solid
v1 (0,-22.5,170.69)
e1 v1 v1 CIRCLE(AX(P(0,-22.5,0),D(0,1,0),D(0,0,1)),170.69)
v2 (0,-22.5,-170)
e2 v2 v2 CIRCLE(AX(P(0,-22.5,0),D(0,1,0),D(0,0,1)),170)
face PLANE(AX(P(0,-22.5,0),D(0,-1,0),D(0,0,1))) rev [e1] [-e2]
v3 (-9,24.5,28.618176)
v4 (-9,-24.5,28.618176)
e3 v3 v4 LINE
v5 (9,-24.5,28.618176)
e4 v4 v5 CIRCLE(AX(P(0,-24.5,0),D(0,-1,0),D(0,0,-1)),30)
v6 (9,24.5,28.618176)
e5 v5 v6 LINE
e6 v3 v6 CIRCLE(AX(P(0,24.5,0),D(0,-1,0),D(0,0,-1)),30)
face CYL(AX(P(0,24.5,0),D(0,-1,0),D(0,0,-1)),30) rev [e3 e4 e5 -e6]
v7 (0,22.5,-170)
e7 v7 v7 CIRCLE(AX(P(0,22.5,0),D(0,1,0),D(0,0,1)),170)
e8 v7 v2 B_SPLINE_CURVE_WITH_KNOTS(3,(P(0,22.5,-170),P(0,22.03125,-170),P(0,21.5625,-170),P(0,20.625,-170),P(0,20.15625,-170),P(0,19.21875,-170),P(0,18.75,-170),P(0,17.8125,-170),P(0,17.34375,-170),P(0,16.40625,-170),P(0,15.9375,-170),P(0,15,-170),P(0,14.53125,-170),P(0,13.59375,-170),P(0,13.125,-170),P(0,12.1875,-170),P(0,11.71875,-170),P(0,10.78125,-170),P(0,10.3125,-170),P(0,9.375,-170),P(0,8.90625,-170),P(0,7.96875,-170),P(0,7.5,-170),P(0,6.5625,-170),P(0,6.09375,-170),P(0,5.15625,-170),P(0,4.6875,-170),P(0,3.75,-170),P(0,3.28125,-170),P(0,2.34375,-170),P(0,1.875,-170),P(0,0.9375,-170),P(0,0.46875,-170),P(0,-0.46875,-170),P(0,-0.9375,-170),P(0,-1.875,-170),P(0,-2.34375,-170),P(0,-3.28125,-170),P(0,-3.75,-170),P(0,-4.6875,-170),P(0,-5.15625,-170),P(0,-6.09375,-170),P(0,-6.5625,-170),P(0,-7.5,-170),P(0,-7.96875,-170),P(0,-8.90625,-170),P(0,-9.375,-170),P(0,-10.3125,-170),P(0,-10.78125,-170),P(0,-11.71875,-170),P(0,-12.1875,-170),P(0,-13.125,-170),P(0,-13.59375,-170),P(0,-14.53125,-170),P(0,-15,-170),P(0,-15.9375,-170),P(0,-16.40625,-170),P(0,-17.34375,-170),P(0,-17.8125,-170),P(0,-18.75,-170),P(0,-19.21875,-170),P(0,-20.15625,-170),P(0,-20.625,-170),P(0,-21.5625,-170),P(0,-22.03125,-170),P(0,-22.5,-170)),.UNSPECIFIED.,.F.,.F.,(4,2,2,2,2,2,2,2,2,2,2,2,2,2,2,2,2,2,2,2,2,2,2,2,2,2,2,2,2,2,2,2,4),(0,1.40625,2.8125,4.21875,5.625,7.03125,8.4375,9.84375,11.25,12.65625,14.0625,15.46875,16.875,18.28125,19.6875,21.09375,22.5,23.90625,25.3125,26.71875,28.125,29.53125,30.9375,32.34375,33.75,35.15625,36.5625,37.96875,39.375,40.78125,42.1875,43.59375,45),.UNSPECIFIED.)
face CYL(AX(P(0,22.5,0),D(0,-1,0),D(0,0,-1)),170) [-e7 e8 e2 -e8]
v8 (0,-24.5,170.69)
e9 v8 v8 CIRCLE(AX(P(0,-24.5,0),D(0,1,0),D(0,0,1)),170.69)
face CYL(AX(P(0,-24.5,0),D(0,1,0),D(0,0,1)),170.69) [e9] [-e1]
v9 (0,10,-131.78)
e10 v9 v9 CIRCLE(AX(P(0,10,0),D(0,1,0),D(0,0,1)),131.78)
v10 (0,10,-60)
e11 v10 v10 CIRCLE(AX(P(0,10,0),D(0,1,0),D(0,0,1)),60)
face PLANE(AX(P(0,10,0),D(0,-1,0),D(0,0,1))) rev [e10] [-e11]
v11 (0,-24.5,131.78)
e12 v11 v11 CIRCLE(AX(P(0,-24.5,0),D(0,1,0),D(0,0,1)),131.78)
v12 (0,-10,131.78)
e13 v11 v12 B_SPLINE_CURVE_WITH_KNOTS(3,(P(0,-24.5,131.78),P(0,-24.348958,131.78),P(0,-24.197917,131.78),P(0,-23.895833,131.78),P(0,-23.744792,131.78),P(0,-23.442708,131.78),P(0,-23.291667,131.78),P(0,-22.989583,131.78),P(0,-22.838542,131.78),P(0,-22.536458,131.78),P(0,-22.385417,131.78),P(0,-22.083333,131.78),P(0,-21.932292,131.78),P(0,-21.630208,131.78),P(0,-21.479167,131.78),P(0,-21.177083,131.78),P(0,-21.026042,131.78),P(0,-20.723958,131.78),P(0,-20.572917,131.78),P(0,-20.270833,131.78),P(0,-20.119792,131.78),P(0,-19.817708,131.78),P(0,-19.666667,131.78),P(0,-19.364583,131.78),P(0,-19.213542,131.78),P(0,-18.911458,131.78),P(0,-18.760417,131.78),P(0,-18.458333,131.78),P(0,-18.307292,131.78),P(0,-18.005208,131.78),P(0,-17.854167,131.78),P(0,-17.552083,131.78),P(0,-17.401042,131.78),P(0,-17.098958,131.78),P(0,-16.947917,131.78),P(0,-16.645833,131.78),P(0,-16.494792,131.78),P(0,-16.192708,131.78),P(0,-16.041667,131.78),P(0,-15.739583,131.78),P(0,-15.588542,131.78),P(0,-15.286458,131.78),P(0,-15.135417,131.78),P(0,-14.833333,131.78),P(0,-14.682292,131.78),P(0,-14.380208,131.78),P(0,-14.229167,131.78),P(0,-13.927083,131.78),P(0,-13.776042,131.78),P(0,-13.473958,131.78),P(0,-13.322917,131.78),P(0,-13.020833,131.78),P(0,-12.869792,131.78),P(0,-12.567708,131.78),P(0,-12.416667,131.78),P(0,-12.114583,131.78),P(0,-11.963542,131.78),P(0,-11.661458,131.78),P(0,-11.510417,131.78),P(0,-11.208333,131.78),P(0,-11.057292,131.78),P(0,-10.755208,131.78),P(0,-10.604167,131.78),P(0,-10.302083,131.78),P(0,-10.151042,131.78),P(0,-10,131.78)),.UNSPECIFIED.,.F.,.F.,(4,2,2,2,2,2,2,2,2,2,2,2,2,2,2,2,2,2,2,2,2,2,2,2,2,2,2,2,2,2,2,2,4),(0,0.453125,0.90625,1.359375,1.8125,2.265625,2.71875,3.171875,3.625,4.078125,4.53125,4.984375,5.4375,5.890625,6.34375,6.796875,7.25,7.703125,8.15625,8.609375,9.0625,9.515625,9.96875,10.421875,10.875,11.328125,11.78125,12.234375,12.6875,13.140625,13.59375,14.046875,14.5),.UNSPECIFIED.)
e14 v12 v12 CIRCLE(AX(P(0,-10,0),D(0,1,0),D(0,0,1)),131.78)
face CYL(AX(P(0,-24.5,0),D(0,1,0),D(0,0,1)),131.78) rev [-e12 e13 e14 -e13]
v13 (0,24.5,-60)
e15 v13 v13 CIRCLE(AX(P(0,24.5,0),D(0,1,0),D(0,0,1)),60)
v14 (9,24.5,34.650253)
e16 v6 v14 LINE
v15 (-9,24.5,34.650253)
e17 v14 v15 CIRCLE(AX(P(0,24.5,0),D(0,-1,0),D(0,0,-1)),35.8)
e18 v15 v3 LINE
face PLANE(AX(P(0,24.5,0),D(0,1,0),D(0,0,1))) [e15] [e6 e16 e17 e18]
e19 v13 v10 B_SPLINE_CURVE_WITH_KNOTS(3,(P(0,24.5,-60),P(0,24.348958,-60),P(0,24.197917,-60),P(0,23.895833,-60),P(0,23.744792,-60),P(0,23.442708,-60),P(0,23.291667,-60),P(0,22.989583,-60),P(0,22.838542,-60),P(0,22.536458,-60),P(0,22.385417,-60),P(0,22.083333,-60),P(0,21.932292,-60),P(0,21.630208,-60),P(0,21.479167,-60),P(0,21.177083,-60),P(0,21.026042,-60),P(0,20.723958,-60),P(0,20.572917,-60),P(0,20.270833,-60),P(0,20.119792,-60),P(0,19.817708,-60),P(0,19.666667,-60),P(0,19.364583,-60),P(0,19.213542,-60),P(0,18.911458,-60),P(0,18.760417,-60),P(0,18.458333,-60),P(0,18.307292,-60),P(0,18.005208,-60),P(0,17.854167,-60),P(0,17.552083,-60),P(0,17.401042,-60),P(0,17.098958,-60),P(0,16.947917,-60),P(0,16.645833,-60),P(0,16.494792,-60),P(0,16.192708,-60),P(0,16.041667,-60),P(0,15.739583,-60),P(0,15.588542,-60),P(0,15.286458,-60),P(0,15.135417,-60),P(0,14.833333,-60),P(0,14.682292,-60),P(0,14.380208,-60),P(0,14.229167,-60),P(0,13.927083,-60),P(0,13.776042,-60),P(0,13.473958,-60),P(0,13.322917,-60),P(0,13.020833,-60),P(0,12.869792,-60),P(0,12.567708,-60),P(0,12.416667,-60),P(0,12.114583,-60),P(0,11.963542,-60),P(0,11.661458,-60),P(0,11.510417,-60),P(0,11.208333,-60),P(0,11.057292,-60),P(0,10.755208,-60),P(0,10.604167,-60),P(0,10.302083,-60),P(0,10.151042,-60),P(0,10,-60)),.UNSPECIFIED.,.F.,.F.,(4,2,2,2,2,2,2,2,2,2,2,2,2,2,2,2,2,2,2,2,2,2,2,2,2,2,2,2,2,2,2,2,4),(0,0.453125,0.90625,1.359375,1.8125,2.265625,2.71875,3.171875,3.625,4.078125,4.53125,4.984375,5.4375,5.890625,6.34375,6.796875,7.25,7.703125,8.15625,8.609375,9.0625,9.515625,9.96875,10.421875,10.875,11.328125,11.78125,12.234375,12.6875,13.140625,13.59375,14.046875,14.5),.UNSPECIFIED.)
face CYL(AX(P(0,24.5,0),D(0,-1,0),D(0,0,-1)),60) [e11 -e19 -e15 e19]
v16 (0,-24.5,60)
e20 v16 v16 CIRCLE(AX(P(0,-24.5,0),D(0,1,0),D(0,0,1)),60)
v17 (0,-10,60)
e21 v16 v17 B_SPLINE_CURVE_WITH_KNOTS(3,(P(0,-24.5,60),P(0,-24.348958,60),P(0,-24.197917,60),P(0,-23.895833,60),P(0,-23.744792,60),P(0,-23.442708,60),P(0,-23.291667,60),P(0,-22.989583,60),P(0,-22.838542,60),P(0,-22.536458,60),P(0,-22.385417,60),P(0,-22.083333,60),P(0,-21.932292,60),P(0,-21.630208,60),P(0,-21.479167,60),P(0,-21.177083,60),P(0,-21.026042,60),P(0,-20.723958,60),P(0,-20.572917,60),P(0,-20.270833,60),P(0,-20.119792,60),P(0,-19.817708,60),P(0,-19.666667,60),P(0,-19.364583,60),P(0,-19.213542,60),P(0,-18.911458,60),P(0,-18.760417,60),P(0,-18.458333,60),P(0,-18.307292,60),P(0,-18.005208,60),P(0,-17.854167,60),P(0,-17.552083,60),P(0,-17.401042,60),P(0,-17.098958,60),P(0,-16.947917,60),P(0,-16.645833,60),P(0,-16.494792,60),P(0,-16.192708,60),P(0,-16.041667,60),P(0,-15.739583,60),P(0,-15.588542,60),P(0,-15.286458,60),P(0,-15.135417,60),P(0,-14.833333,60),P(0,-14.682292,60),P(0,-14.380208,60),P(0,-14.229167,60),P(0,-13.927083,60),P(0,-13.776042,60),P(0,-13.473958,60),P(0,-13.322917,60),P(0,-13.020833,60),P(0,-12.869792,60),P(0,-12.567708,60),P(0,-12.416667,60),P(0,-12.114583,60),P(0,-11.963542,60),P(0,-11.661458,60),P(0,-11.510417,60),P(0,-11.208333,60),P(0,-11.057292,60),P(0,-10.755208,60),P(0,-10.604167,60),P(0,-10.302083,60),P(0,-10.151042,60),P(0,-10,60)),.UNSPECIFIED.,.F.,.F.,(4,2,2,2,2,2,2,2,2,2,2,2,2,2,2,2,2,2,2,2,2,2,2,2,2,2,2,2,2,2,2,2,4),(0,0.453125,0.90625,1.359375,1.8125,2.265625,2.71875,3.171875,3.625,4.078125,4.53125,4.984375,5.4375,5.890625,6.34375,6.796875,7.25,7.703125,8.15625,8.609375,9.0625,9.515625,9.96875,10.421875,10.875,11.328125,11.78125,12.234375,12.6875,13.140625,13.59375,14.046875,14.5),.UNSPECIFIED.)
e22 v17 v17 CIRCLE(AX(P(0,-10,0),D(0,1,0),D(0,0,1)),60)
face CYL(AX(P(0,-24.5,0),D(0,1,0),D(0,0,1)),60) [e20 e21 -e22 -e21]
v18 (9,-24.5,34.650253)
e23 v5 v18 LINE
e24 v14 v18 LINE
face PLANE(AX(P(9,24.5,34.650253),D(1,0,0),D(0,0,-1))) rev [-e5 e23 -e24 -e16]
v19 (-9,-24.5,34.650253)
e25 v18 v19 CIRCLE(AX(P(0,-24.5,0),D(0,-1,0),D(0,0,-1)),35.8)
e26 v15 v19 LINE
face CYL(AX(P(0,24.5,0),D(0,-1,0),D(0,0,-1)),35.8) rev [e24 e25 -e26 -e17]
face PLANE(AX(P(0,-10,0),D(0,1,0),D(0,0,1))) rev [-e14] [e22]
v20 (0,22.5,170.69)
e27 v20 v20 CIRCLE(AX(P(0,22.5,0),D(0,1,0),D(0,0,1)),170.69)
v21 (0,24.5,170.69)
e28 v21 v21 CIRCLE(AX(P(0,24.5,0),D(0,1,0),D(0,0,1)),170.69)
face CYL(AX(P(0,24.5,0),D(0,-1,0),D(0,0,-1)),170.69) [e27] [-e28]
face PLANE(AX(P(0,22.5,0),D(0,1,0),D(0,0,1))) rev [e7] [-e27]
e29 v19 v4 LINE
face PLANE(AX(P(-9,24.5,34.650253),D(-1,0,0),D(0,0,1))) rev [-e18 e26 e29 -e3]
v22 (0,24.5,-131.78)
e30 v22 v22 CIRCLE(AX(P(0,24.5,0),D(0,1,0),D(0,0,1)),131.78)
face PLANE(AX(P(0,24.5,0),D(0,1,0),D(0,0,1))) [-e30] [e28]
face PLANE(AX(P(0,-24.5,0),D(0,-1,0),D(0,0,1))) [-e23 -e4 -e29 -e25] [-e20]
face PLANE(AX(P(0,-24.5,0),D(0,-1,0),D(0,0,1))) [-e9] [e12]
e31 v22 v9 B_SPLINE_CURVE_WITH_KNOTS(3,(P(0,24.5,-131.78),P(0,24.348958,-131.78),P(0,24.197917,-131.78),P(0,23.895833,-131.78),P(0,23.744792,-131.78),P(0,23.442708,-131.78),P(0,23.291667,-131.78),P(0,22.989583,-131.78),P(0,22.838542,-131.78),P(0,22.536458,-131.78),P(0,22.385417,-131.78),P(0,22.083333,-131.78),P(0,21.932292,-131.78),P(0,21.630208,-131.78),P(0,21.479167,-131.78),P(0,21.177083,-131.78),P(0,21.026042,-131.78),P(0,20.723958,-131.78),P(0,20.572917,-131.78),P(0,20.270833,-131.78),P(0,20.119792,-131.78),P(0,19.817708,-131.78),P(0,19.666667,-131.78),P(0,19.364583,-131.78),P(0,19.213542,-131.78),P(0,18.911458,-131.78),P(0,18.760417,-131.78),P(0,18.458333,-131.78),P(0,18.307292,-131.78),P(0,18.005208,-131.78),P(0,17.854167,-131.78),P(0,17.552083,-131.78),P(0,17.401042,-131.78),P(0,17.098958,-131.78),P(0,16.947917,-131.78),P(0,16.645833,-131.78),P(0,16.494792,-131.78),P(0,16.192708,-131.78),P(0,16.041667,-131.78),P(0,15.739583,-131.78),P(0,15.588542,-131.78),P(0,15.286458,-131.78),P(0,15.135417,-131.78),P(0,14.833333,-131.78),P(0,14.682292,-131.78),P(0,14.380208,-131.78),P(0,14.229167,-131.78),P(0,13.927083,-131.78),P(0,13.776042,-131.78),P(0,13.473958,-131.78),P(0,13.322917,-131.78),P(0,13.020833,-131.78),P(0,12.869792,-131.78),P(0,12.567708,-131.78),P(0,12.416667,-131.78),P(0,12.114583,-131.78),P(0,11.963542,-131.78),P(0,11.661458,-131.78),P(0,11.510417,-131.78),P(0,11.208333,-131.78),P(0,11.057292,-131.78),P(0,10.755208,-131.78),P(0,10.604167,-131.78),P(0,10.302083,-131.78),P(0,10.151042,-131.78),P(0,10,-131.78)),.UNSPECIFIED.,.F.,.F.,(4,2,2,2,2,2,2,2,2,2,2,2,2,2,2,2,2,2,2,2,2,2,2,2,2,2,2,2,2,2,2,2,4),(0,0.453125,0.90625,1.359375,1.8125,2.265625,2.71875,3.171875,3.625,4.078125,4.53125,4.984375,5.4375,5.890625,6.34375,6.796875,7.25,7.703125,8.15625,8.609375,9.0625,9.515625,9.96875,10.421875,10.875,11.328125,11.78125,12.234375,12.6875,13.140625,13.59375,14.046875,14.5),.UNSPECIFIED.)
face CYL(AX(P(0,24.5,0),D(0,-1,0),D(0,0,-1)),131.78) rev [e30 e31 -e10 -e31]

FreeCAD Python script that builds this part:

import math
import FreeCAD as App
import Part
import Sketcher

V = App.Vector
Q = App.Units.Quantity

doc = App.newDocument("Part")
params = doc.addObject("Spreadsheet::Sheet", "Params")
for row, (alias, value) in enumerate([
    ("sketch1_diameter", "340 mm"),
    ("pad1_length", "45 mm"),
    ("sketch2_diameter", "341.38 mm"),
    ("pad2_length", "2 mm"),
    ("sketch3_diameter", "120 mm"),
    ("sketch3_diameter2", "263.56 mm"),
    ("sketch4_diameter", "60 mm"),
    ("sketch5_radius", "35.8 mm"),
    ("sketch5_width", "18 mm"),
], start=1):
    params.set(f"A{row}", alias)
    params.set(f"B{row}", "=" + value)
    params.setAlias(f"B{row}", alias)

body = doc.addObject("PartDesign::Body", "Body")

# Sketch on XZ plane
sketch1 = body.newObject("Sketcher::SketchObject", "Sketch")
sketch1.AttachmentSupport = (doc.getObject("XZ_Plane"), [""])
sketch1.MapMode = "FlatFace"
sketch1.addGeometry(Part.Circle(V(0, 0, 0), V(0, 0, 1), 170), False)
sketch1.addConstraint(Sketcher.Constraint("Coincident", 0, 3, -1, 1))
sketch1.addConstraint(Sketcher.Constraint("Diameter", 0, Q("340 mm")))
sketch1.setExpression("Constraints[1]", "Params.sketch1_diameter")
pad1 = body.newObject("PartDesign::Pad", "Pad")
pad1.Profile = sketch1
pad1.setExpression("Length", "Params.pad1_length")
pad1.Midplane = True

# Sketch on XZ plane
sketch2 = body.newObject("Sketcher::SketchObject", "Sketch001")
sketch2.AttachmentSupport = (doc.getObject("XZ_Plane"), [""])
sketch2.MapMode = "FlatFace"
sketch2.AttachmentOffset = App.Placement(V(0, 0, -22.5), App.Rotation())
sketch2.addGeometry(Part.Circle(V(0, 0, 0), V(0, 0, 1), 170.69), False)
sketch2.addConstraint(Sketcher.Constraint("Coincident", 0, 3, -1, 1))
sketch2.addConstraint(Sketcher.Constraint("Diameter", 0, Q("341.38 mm")))
sketch2.setExpression("Constraints[1]", "Params.sketch2_diameter")
pad2 = body.newObject("PartDesign::Pad", "Pad001")
pad2.Profile = sketch2
pad2.setExpression("Length", "Params.pad2_length")
pad2.Reversed = True
doc.recompute()

mirrored = body.newObject("PartDesign::Mirrored", "Mirrored")
mirrored.Originals = [pad2]
mirrored.MirrorPlane = (doc.getObject("XZ_Plane"), [""])
body.Tip = mirrored

# Sketch on XZ plane
sketch3 = body.newObject("Sketcher::SketchObject", "Sketch002")
sketch3.AttachmentSupport = (doc.getObject("XZ_Plane"), [""])
sketch3.MapMode = "FlatFace"
sketch3.AttachmentOffset = App.Placement(V(0, 0, 10), App.Rotation())
sketch3.addGeometry(Part.Circle(V(0, 0, 0), V(0, 0, 1), 131.78), False)
sketch3.addGeometry(Part.Circle(V(0, 0, 0), V(0, 0, 1), 60), False)
sketch3.addConstraint(Sketcher.Constraint("Coincident", 0, 3, -1, 1))
sketch3.addConstraint(Sketcher.Constraint("Coincident", 1, 3, -1, 1))
sketch3.addConstraint(Sketcher.Constraint("Diameter", 1, Q("120 mm")))
sketch3.addConstraint(Sketcher.Constraint("Diameter", 0, Q("263.56 mm")))
sketch3.setExpression("Constraints[2]", "Params.sketch3_diameter")
sketch3.setExpression("Constraints[3]", "Params.sketch3_diameter2")
pocket1 = body.newObject("PartDesign::Pocket", "Pocket")
pocket1.Profile = sketch3
pocket1.Type = "ThroughAll"
pocket1.Reversed = True
doc.recompute()

mirrored2 = body.newObject("PartDesign::Mirrored", "Mirrored001")
mirrored2.Originals = [pocket1]
mirrored2.MirrorPlane = (doc.getObject("XZ_Plane"), [""])
body.Tip = mirrored2

# Sketch on XZ plane
sketch4 = body.newObject("Sketcher::SketchObject", "Sketch003")
sketch4.AttachmentSupport = (doc.getObject("XZ_Plane"), [""])
sketch4.MapMode = "FlatFace"
sketch4.AttachmentOffset = App.Placement(V(0, 0, 24.5), App.Rotation())
sketch4.addGeometry(Part.Circle(V(0, 0, 0), V(0, 0, 1), 30), False)
sketch4.addConstraint(Sketcher.Constraint("Coincident", 0, 3, -1, 1))
sketch4.addConstraint(Sketcher.Constraint("Diameter", 0, Q("60 mm")))
sketch4.setExpression("Constraints[1]", "Params.sketch4_diameter")
pocket2 = body.newObject("PartDesign::Pocket", "Pocket001")
pocket2.Profile = sketch4
pocket2.Type = "ThroughAll"

# Sketch on XZ plane
sketch5 = body.newObject("Sketcher::SketchObject", "Sketch004")
sketch5.AttachmentSupport = (doc.getObject("XZ_Plane"), [""])
sketch5.MapMode = "FlatFace"
sketch5.AttachmentOffset = App.Placement(V(0, 0, 24.5), App.Rotation())
sketch5.addGeometry(Part.LineSegment(V(-9, 34.650253, 0), V(-9, 18.06981, 0)), False)
sketch5.addGeometry(Part.LineSegment(V(-9, 18.06981, 0), V(9, 18.06981, 0)), False)
sketch5.addGeometry(Part.LineSegment(V(9, 18.06981, 0), V(9, 34.650253, 0)), False)
sketch5.addGeometry(Part.ArcOfCircle(Part.Circle(V(0, 0, 0), V(0, 0, 1), 35.8), math.radians(75.439826), math.radians(104.560174)), False)
sketch5.addConstraint(Sketcher.Constraint("Coincident", 0, 2, 1, 1))
sketch5.addConstraint(Sketcher.Constraint("Coincident", 1, 2, 2, 1))
sketch5.addConstraint(Sketcher.Constraint("Coincident", 2, 2, 3, 1))
sketch5.addConstraint(Sketcher.Constraint("Coincident", 3, 2, 0, 1))
sketch5.addConstraint(Sketcher.Constraint("Vertical", 0))
sketch5.addConstraint(Sketcher.Constraint("Horizontal", 1))
sketch5.addConstraint(Sketcher.Constraint("Vertical", 2))
sketch5.addConstraint(Sketcher.Constraint("Coincident", 3, 3, -1, 1))
sketch5.addConstraint(Sketcher.Constraint("Horizontal", 2, 2, 3, 2))
sketch5.addConstraint(Sketcher.Constraint("Radius", 3, Q("35.8 mm")))
sketch5.addConstraint(Sketcher.Constraint("DistanceX", 1, 1, 1, 2, Q("18 mm")))
sketch5.addConstraint(Sketcher.Constraint("DistanceY", 0, 2, 0, 1, Q("16.580443 mm")))
sketch5.setExpression("Constraints[9]", "Params.sketch5_radius")
sketch5.setExpression("Constraints[10]", "Params.sketch5_width")
pocket3 = body.newObject("PartDesign::Pocket", "Pocket002")
pocket3.Profile = sketch5
pocket3.Type = "ThroughAll"

doc.recompute()
